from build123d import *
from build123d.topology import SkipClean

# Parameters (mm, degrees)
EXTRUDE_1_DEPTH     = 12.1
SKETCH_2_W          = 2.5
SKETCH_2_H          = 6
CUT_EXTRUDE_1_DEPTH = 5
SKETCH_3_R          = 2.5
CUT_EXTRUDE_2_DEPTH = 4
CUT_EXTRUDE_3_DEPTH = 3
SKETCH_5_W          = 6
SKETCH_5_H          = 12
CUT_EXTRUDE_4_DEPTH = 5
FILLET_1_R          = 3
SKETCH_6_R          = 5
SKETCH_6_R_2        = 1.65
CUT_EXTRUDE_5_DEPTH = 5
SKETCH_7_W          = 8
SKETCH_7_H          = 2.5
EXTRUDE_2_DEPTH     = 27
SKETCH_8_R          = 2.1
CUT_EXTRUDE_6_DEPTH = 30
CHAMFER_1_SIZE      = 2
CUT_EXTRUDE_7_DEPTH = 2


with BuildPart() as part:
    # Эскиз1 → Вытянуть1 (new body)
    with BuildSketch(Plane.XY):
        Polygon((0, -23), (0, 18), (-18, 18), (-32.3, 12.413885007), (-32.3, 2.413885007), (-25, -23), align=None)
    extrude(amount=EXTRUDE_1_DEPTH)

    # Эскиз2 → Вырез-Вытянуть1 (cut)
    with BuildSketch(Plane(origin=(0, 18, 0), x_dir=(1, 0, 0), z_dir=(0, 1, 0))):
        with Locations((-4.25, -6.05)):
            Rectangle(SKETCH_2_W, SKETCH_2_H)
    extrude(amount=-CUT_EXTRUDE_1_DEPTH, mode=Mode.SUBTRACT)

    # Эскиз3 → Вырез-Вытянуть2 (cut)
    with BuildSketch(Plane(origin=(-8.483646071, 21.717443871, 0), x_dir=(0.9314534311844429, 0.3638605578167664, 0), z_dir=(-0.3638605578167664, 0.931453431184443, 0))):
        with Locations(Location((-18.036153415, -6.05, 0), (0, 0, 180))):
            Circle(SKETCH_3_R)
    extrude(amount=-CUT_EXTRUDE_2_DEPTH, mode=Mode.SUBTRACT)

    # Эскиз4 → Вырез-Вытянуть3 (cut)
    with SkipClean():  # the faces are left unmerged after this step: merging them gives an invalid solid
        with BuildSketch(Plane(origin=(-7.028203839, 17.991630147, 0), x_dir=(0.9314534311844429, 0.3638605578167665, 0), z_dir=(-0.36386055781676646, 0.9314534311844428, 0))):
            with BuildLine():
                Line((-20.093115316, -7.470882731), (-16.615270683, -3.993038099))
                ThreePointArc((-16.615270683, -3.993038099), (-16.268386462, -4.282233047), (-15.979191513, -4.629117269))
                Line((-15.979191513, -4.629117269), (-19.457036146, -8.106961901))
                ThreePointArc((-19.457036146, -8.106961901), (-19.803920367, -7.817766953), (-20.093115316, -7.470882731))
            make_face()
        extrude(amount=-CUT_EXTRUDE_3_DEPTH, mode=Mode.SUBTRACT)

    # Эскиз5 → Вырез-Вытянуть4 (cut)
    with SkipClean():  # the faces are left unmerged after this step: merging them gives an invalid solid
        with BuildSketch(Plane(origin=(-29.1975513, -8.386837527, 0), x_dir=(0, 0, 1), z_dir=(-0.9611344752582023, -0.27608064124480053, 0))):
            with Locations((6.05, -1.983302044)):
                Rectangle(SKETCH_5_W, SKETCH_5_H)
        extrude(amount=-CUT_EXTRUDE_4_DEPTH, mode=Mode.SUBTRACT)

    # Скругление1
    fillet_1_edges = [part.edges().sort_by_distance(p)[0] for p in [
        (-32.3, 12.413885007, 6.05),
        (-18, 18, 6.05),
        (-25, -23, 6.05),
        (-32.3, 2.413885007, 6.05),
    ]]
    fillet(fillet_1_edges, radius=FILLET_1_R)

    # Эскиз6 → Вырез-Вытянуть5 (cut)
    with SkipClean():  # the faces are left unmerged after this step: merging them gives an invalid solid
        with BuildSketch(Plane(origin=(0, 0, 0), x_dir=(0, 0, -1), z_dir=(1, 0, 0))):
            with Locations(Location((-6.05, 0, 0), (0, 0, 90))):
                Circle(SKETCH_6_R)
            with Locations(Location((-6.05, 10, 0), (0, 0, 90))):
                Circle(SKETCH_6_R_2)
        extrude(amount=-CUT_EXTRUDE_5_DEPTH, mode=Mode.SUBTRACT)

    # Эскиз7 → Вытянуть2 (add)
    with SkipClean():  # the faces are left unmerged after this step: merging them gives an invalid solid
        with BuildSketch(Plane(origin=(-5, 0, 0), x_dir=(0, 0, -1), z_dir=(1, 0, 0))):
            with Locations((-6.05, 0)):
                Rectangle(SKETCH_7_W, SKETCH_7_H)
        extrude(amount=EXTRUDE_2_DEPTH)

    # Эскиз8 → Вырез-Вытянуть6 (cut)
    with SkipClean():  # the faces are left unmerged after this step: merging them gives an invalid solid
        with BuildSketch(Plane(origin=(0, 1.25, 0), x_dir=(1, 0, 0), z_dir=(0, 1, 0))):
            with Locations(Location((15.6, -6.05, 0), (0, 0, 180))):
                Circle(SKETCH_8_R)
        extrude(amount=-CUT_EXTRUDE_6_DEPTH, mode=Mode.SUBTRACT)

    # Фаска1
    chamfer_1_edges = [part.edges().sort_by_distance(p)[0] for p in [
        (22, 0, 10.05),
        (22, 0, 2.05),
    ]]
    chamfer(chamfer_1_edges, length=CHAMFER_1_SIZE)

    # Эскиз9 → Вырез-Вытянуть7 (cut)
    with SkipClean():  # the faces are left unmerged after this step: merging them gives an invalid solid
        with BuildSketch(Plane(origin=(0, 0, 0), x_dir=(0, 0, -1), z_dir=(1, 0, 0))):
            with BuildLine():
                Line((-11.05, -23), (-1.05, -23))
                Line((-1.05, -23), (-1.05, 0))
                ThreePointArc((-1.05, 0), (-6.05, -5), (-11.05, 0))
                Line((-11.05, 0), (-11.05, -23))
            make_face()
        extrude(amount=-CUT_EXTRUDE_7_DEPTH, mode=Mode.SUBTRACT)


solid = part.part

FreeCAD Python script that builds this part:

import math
import FreeCAD as App
import Part
import Sketcher

V = App.Vector
Q = App.Units.Quantity


def edges_at(feature, points):
    """Names of the edges that pass closest to the given points."""
    edges = feature.Shape.Edges
    near = lambda p: min(range(len(edges)), key=lambda i: edges[i].distToShape(Part.Vertex(*p))[0])
    return sorted({f"Edge{near(p) + 1}" for p in points})


def add_polygon(sketch, points):
    """Adds a closed chain of lines whose ends are joined by coincident constraints."""
    first, n = sketch.GeometryCount, len(points)
    for a, b in zip(points, points[1:] + points[:1]):
        sketch.addGeometry(Part.LineSegment(App.Vector(*a, 0), App.Vector(*b, 0)), False)
    for i in range(n):
        sketch.addConstraint(Sketcher.Constraint("Coincident", first + i, 2, first + (i + 1) % n, 1))

doc = App.newDocument("Part")
body = doc.addObject("PartDesign::Body", "Body")

sketch1 = doc.addObject("Sketcher::SketchObject", "Sketch")
body.addObject(sketch1)
sketch1.AttachmentSupport = (doc.XY_Plane, [""])
sketch1.MapMode = "FlatFace"
add_polygon(sketch1, [(0, -23), (0, 18), (-18, 18), (-32, 12), (-32, 2), (-25, -23)])
sketch1.addConstraint([
    Sketcher.Constraint("Vertical", 0),
    Sketcher.Constraint("Horizontal", 1),
    Sketcher.Constraint("Vertical", 3),
    Sketcher.Constraint("Horizontal", 5),
    Sketcher.Constraint("PointOnObject", 0, 2, -2),
    Sketcher.Constraint("DistanceX", 1, 2, 1, 1, 18.0),
    Sketcher.Constraint("DistanceX", 5, 1, 5, 2, 25.0),
    Sketcher.Constraint("DistanceY", 0, 1, 0, 2, 41.0),
    Sketcher.Constraint("DistanceY", 3, 2, 3, 1, 10.0),
    Sketcher.Constraint("DistanceY", -1, 1, 0, 2, 18.0),
    Sketcher.Constraint("DistanceX", 2, 2, -1, 1, 32.3),
    Sketcher.Constraint("Distance", 2, 15.352351),
])
pad1 = doc.addObject("PartDesign::Pad", "Pad")
body.addObject(pad1)
pad1.Profile = sketch1
pad1.Length = 12.1

sketch2 = doc.addObject("Sketcher::SketchObject", "Sketch001")
body.addObject(sketch2)
sketch2.AttachmentSupport = (doc.XZ_Plane, [""])
sketch2.MapMode = "FlatFace"
sketch2.AttachmentOffset = App.Placement(V(0, 0, -18), App.Rotation())
add_polygon(sketch2, [(-5.5, 3), (-5.5, 9.1), (-3, 9.1), (-3, 3)])
sketch2.addConstraint([
    Sketcher.Constraint("Vertical", 0),
    Sketcher.Constraint("Horizontal", 1),
    Sketcher.Constraint("Vertical", 2),
    Sketcher.Constraint("Horizontal", 3),
    Sketcher.Constraint("DistanceY", 0, 1, 0, 2, 6.0),
    Sketcher.Constraint("DistanceX", 1, 1, 1, 2, 2.5),
    Sketcher.Constraint("DistanceX", 1, 2, -1, 1, 3.0),
    Sketcher.Constraint("DistanceY", -1, 1, 0, 2, 9.05),
])
pocket1 = doc.addObject("PartDesign::Pocket", "Pocket")
body.addObject(pocket1)
pocket1.Profile = sketch2
pocket1.Length = 5
pocket1.Reversed = True

sketch3 = doc.addObject("Sketcher::SketchObject", "Sketch002")
body.addObject(sketch3)
sketch3.Placement = App.Placement(V(-8.483646, 21.717444, 0), App.Rotation(V(0.931453431, 0.363860558, 0), V(0, 0, -1), V(-0.363860558, 0.931453431, 0), "ZXY"))
sketch3.addGeometry(Part.Circle(V(-18, -6, 0), V(0, 0, 1), 2.5), False)
sketch3.addConstraint([
    Sketcher.Constraint("Diameter", 0, 5.0),
    Sketcher.Constraint("DistanceY", 0, 3, -1, 1, 6.05),
    Sketcher.Constraint("DistanceX", 0, 3, -1, 1, 18.036153),
])
pocket2 = doc.addObject("PartDesign::Pocket", "Pocket001")
body.addObject(pocket2)
pocket2.Profile = sketch3
pocket2.Length = 4

sketch4 = doc.addObject("Sketcher::SketchObject", "Sketch003")
body.addObject(sketch4)
sketch4.Placement = App.Placement(V(-7.028204, 17.99163, 0), App.Rotation(V(0.931453431, 0.363860558, 0), V(0, 0, -1), V(-0.363860558, 0.931453431, 0), "ZXY"))
sketch4.addGeometry([
    Part.LineSegment(V(-16.6, -4, 0), V(-20.1, -7.5, 0)),
    Part.ArcOfCircle(Part.Circle(V(-18, -6, 0), V(0, 0, 1), 2.5), math.radians(-145), math.radians(-125)),
    Part.LineSegment(V(-19.5, -8.1, 0), V(-16, -4.6, 0)),
    Part.ArcOfCircle(Part.Circle(V(-18, -6.1, 0), V(0, 0, 1), 2.5), math.radians(35), math.radians(55)),
], False)
sketch4.addConstraint([
    Sketcher.Constraint("Coincident", 0, 2, 1, 1),
    Sketcher.Constraint("Coincident", 1, 2, 2, 1),
    Sketcher.Constraint("Coincident", 2, 2, 3, 1),
    Sketcher.Constraint("Coincident", 3, 2, 0, 1),
    Sketcher.Constraint("Coincident", 3, 3, 1, 3),
    Sketcher.Constraint("Equal", 1, 3),
    Sketcher.Constraint("Parallel", 0, 2),
    Sketcher.Constraint("Equal", 0, 2),
    Sketcher.Constraint("Radius", 1, 2.5),
    Sketcher.Constraint("Angle", 0, Q("-135 deg")),
    Sketcher.Constraint("DistanceY", 1, 3, -1, 1, 6.05),
    Sketcher.Constraint("DistanceY", 1, 2, -1, 1, 8.106962),
    Sketcher.Constraint("DistanceX", 2, 2, -1, 1, 15.979192),
])
pocket3 = doc.addObject("PartDesign::Pocket", "Pocket002")
body.addObject(pocket3)
pocket3.Profile = sketch4
pocket3.Length = 3

sketch5 = doc.addObject("Sketcher::SketchObject", "Sketch004")
body.addObject(sketch5)
sketch5.Placement = App.Placement(V(-29.197551, -8.386838, 0), App.Rotation(V(0, 0, 1), V(-0.276080641, 0.961134475, 0), V(-0.961134475, -0.276080641, 0), "ZXY"))
add_polygon(sketch5, [(3, 4), (3, -8), (9, -8), (9, 4)])
sketch5.addConstraint([
    Sketcher.Constraint("Vertical", 0),
    Sketcher.Constraint("Horizontal", 1),
    Sketcher.Constraint("Vertical", 2),
    Sketcher.Constraint("Horizontal", 3),
    Sketcher.Constraint("DistanceX", 1, 1, 1, 2, 6.0),
    Sketcher.Constraint("DistanceY", 0, 2, 0, 1, 12.0),
    Sketcher.Constraint("DistanceX", -1, 1, 0, 2, 3.05),
    Sketcher.Constraint("DistanceY", 0, 2, -1, 1, 7.983302),
])
pocket4 = doc.addObject("PartDesign::Pocket", "Pocket003")
body.addObject(pocket4)
pocket4.Profile = sketch5
pocket4.Length = 5
doc.recompute()

fillet = doc.addObject("PartDesign::Fillet", "Fillet")
body.addObject(fillet)
fillet.Base = (pocket4, edges_at(pocket4, [
    (-32.3, 12.414, 6.05),
    (-18, 18, 6.05),
    (-25, -23, 6.05),
    (-32.3, 2.414, 6.05),
]))
fillet.Radius = 3

sketch6 = doc.addObject("Sketcher::SketchObject", "Sketch005")
body.addObject(sketch6)
sketch6.AttachmentSupport = (doc.YZ_Plane, [""])
sketch6.MapMode = "FlatFace"
sketch6.addGeometry([
    Part.Circle(V(0, 6, 0), V(0, 0, 1), 5),
    Part.Circle(V(10, 6, 0), V(0, 0, 1), 1.6),
], False)
sketch6.addConstraint([
    Sketcher.Constraint("PointOnObject", 0, 3, -2),
    Sketcher.Constraint("Horizontal", 0, 3, 1, 3),
    Sketcher.Constraint("Diameter", 0, 10.0),
    Sketcher.Constraint("Diameter", 1, 3.3),
    Sketcher.Constraint("DistanceX", -1, 1, 1, 3, 10.0),
    Sketcher.Constraint("DistanceY", -1, 1, 0, 3, 6.05),
])
pocket5 = doc.addObject("PartDesign::Pocket", "Pocket004")
body.addObject(pocket5)
pocket5.Profile = sketch6
pocket5.Length = 5

sketch7 = doc.addObject("Sketcher::SketchObject", "Sketch006")
body.addObject(sketch7)
sketch7.AttachmentSupport = (doc.YZ_Plane, [""])
sketch7.MapMode = "FlatFace"
sketch7.AttachmentOffset = App.Placement(V(0, 0, -5), App.Rotation())
add_polygon(sketch7, [(1.2, 10.1), (-1.2, 10.1), (-1.2, 2), (1.2, 2)])
sketch7.addConstraint([
    Sketcher.Constraint("Horizontal", 0),
    Sketcher.Constraint("Vertical", 1),
    Sketcher.Constraint("Horizontal", 2),
    Sketcher.Constraint("Vertical", 3),
    Sketcher.Constraint("DistanceY", 1, 2, 1, 1, 8.0),
    Sketcher.Constraint("DistanceX", 0, 2, 0, 1, 2.5),
    Sketcher.Constraint("DistanceX", 0, 2, -1, 1, 1.25),
    Sketcher.Constraint("DistanceY", -1, 1, 0, 2, 10.05),
])
pad2 = doc.addObject("PartDesign::Pad", "Pad001")
body.addObject(pad2)
pad2.Profile = sketch7
pad2.Length = 27

sketch8 = doc.addObject("Sketcher::SketchObject", "Sketch007")
body.addObject(sketch8)
sketch8.AttachmentSupport = (doc.XZ_Plane, [""])
sketch8.MapMode = "FlatFace"
sketch8.AttachmentOffset = App.Placement(V(0, 0, -1.25), App.Rotation())
sketch8.addGeometry(Part.Circle(V(15.6, 6, 0), V(0, 0, 1), 2.1), False)
sketch8.addConstraint([
    Sketcher.Constraint("Diameter", 0, 4.2),
    Sketcher.Constraint("DistanceX", -1, 1, 0, 3, 15.6),
    Sketcher.Constraint("DistanceY", -1, 1, 0, 3, 6.05),
])
pocket6 = doc.addObject("PartDesign::Pocket", "Pocket005")
body.addObject(pocket6)
pocket6.Profile = sketch8
pocket6.Length = 30
pocket6.Reversed = True
doc.recompute()

chamfer = doc.addObject("PartDesign::Chamfer", "Chamfer")
body.addObject(chamfer)
chamfer.Base = (pocket6, edges_at(pocket6, [(22, 0, 10.05), (22, 0, 2.05)]))
chamfer.Size = 2

sketch9 = doc.addObject("Sketcher::SketchObject", "Sketch008")
body.addObject(sketch9)
sketch9.AttachmentSupport = (doc.YZ_Plane, [""])
sketch9.MapMode = "FlatFace"
sketch9.addGeometry([
    Part.LineSegment(V(-23, 11, 0), V(-23, 1, 0)),
    Part.LineSegment(V(-23, 1, 0), V(0, 1, 0)),
    Part.ArcOfCircle(Part.Circle(V(0, 6, 0), V(0, 0, 1), 5), math.radians(90), math.radians(270)),
    Part.LineSegment(V(0, 11, 0), V(-23, 11, 0)),
], False)
sketch9.addConstraint([
    Sketcher.Constraint("Coincident", 0, 2, 1, 1),
    Sketcher.Constraint("Tangent", 1, 2, 2, 2),
    Sketcher.Constraint("Tangent", 2, 1, 3, 1),
    Sketcher.Constraint("Coincident", 3, 2, 0, 1),
    Sketcher.Constraint("Vertical", 0),
    Sketcher.Constraint("Horizontal", 1),
    Sketcher.Constraint("Horizontal", 3),
    Sketcher.Constraint("PointOnObject", 2, 3, -2),
    Sketcher.Constraint("Radius", 2, 5.0),
    Sketcher.Constraint("DistanceX", 1, 1, 1, 2, 23.0),
    Sketcher.Constraint("DistanceY", -1, 1, 2, 3, 6.05),
])
pocket7 = doc.addObject("PartDesign::Pocket", "Pocket006")
body.addObject(pocket7)
pocket7.Profile = sketch9
pocket7.Length = 2

doc.recompute()
